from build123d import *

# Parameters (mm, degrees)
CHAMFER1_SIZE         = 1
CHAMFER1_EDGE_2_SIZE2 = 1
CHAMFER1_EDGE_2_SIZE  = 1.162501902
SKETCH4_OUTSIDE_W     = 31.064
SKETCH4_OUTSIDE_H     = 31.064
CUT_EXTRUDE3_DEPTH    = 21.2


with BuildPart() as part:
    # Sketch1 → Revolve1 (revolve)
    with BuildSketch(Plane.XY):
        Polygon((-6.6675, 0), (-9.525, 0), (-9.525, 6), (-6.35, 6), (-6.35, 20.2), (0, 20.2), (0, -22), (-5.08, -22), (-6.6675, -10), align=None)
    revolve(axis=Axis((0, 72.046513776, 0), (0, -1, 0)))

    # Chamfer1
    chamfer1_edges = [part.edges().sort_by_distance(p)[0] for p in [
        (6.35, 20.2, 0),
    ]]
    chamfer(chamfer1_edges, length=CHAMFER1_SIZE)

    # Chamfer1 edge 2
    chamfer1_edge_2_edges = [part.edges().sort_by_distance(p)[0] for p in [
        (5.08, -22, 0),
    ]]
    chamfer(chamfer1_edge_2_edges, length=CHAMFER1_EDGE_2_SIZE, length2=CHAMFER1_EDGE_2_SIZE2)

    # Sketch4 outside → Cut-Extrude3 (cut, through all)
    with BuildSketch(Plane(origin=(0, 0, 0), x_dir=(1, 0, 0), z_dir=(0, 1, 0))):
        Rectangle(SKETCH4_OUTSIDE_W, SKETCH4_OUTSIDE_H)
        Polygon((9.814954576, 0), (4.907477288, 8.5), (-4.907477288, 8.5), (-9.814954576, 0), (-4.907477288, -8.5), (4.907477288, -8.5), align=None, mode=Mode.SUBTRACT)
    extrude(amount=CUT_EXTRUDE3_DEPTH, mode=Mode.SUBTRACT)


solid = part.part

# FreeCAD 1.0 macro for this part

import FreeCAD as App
import Part
import Sketcher
from FreeCAD import Vector
Q = App.Units.Quantity


def edges_at(feature, points):
    """Names of the edges that pass closest to the given points."""
    edges = feature.Shape.Edges
    near = lambda p: min(range(len(edges)), key=lambda i: edges[i].distToShape(Part.Vertex(*p))[0])
    return sorted({f"Edge{near(p) + 1}" for p in points})

doc = App.newDocument("Part")
body = doc.addObject("PartDesign::Body", "Body")

# Sketch on XY plane
sketch1 = body.newObject("Sketcher::SketchObject", "Sketch")
sketch1.AttachmentSupport = (doc.getObject("XY_Plane"), [""])
sketch1.MapMode = "FlatFace"
sketch1.addGeometry([
    Part.LineSegment(Vector(-9.525, 0, 0), Vector(-6.6675, 0, 0)),  # 0
    Part.LineSegment(Vector(-6.6675, 0, 0), Vector(-6.6675, -10, 0)),  # 1
    Part.LineSegment(Vector(-6.6675, -10, 0), Vector(-5.08, -22, 0)),  # 2
    Part.LineSegment(Vector(-5.08, -22, 0), Vector(0, -22, 0)),  # 3
    Part.LineSegment(Vector(0, -22, 0), Vector(0, 20.2, 0)),  # 4
    Part.LineSegment(Vector(0, 20.2, 0), Vector(-6.35, 20.2, 0)),  # 5
    Part.LineSegment(Vector(-6.35, 20.2, 0), Vector(-6.35, 6, 0)),  # 6
    Part.LineSegment(Vector(-6.35, 6, 0), Vector(-9.525, 6, 0)),  # 7
    Part.LineSegment(Vector(-9.525, 6, 0), Vector(-9.525, 0, 0)),  # 8
], False)
sketch1.addConstraint([
    Sketcher.Constraint("Coincident", 0, 2, 1, 1),
    Sketcher.Constraint("Coincident", 1, 2, 2, 1),
    Sketcher.Constraint("Coincident", 2, 2, 3, 1),
    Sketcher.Constraint("Coincident", 3, 2, 4, 1),
    Sketcher.Constraint("Coincident", 4, 2, 5, 1),
    Sketcher.Constraint("Coincident", 5, 2, 6, 1),
    Sketcher.Constraint("Coincident", 6, 2, 7, 1),
    Sketcher.Constraint("Coincident", 7, 2, 8, 1),
    Sketcher.Constraint("Coincident", 8, 2, 0, 1),
    Sketcher.Constraint("Horizontal", 0),
    Sketcher.Constraint("Vertical", 1),
    Sketcher.Constraint("Horizontal", 3),
    Sketcher.Constraint("Vertical", 4),
    Sketcher.Constraint("Horizontal", 5),
    Sketcher.Constraint("Vertical", 6),
    Sketcher.Constraint("Horizontal", 7),
    Sketcher.Constraint("Vertical", 8),
    Sketcher.Constraint("PointOnObject", 0, 2, -1),
    Sketcher.Constraint("PointOnObject", 3, 2, -2),
    Sketcher.Constraint("DistanceY", 1, 2, 1, 1, 10.0),
    Sketcher.Constraint("DistanceY", 8, 2, 8, 1, 6.0),
    Sketcher.Constraint("DistanceY", 4, 1, 4, 2, 42.2),
    Sketcher.Constraint("DistanceY", 6, 2, 6, 1, 14.2),
    Sketcher.Constraint("DistanceX", 3, 1, 3, 2, 5.08),
    Sketcher.Constraint("DistanceX", 5, 2, 5, 1, 6.35),
    Sketcher.Constraint("DistanceX", 7, 2, 7, 1, 3.175),
    Sketcher.Constraint("DistanceX", 0, 1, 0, 2, 2.8575),
])
revolution = body.newObject("PartDesign::Revolution", "Revolution")
revolution.Profile = sketch1
revolution.ReferenceAxis = (sketch1, ["V_Axis"])
revolution.Angle = 360
doc.recompute()

chamfer = body.newObject("PartDesign::Chamfer", "Chamfer")
chamfer.Base = (revolution, edges_at(revolution, [(6.35, 20.2, 0)]))
chamfer.Size = 1
doc.recompute()

chamfer2 = body.newObject("PartDesign::Chamfer", "Chamfer001")
chamfer2.Base = (chamfer, edges_at(chamfer, [(5.08, -22, 0)]))
chamfer2.ChamferType = "Two distances"
chamfer2.Size = 1.162502
chamfer2.Size2 = 1

# Sketch on XZ plane
sketch2 = body.newObject("Sketcher::SketchObject", "Sketch001")
sketch2.AttachmentSupport = (doc.getObject("XZ_Plane"), [""])
sketch2.MapMode = "FlatFace"
sketch2.addGeometry([
    Part.LineSegment(Vector(-15.532, -15.532, 0), Vector(-15.532, 15.532, 0)),  # 0
    Part.LineSegment(Vector(-15.532, 15.532, 0), Vector(15.532, 15.532, 0)),  # 1
    Part.LineSegment(Vector(15.532, 15.532, 0), Vector(15.532, -15.532, 0)),  # 2
    Part.LineSegment(Vector(15.532, -15.532, 0), Vector(-15.532, -15.532, 0)),  # 3
    Part.LineSegment(Vector(4.907477, -8.5, 0), Vector(9.814955, 0, 0)),  # 4
    Part.LineSegment(Vector(9.814955, 0, 0), Vector(4.907477, 8.5, 0)),  # 5
    Part.LineSegment(Vector(4.907477, 8.5, 0), Vector(-4.907477, 8.5, 0)),  # 6
    Part.LineSegment(Vector(-4.907477, 8.5, 0), Vector(-9.814955, 0, 0)),  # 7
    Part.LineSegment(Vector(-9.814955, 0, 0), Vector(-4.907477, -8.5, 0)),  # 8
    Part.LineSegment(Vector(-4.907477, -8.5, 0), Vector(4.907477, -8.5, 0)),  # 9
], False)
sketch2.addConstraint([
    Sketcher.Constraint("Coincident", 0, 2, 1, 1),
    Sketcher.Constraint("Coincident", 1, 2, 2, 1),
    Sketcher.Constraint("Coincident", 2, 2, 3, 1),
    Sketcher.Constraint("Coincident", 3, 2, 0, 1),
    Sketcher.Constraint("Coincident", 4, 2, 5, 1),
    Sketcher.Constraint("Coincident", 5, 2, 6, 1),
    Sketcher.Constraint("Coincident", 6, 2, 7, 1),
    Sketcher.Constraint("Coincident", 7, 2, 8, 1),
    Sketcher.Constraint("Coincident", 8, 2, 9, 1),
    Sketcher.Constraint("Coincident", 9, 2, 4, 1),
    Sketcher.Constraint("Vertical", 0),
    Sketcher.Constraint("Horizontal", 1),
    Sketcher.Constraint("Vertical", 2),
    Sketcher.Constraint("Horizontal", 3),
    Sketcher.Constraint("Horizontal", 6),
    Sketcher.Constraint("Horizontal", 9),
    Sketcher.Constraint("Symmetric", 0, 2, 2, 2, -1, 1),
    Sketcher.Constraint("Symmetric", 4, 2, 7, 2, -1, 1),
    Sketcher.Constraint("Symmetric", 5, 2, 8, 2, -1, 1),
    Sketcher.Constraint("PointOnObject", 4, 2, -1),
    Sketcher.Constraint("Parallel", 4, 7),
    Sketcher.Constraint("Vertical", 6, 2, 8, 2),
    Sketcher.Constraint("Equal", 3, 0),
    Sketcher.Constraint("Angle", 4, Q("60 deg")),
    Sketcher.Constraint("DistanceY", 8, 2, 6, 2, 17.0),
    Sketcher.Constraint("DistanceX", 1, 1, 1, 2, 31.064),
    Sketcher.Constraint("DistanceX", 6, 2, 6, 1, 9.814955),
])
pocket1 = body.newObject("PartDesign::Pocket", "Pocket")
pocket1.Profile = sketch2
pocket1.Type = "ThroughAll"

doc.recompute()
